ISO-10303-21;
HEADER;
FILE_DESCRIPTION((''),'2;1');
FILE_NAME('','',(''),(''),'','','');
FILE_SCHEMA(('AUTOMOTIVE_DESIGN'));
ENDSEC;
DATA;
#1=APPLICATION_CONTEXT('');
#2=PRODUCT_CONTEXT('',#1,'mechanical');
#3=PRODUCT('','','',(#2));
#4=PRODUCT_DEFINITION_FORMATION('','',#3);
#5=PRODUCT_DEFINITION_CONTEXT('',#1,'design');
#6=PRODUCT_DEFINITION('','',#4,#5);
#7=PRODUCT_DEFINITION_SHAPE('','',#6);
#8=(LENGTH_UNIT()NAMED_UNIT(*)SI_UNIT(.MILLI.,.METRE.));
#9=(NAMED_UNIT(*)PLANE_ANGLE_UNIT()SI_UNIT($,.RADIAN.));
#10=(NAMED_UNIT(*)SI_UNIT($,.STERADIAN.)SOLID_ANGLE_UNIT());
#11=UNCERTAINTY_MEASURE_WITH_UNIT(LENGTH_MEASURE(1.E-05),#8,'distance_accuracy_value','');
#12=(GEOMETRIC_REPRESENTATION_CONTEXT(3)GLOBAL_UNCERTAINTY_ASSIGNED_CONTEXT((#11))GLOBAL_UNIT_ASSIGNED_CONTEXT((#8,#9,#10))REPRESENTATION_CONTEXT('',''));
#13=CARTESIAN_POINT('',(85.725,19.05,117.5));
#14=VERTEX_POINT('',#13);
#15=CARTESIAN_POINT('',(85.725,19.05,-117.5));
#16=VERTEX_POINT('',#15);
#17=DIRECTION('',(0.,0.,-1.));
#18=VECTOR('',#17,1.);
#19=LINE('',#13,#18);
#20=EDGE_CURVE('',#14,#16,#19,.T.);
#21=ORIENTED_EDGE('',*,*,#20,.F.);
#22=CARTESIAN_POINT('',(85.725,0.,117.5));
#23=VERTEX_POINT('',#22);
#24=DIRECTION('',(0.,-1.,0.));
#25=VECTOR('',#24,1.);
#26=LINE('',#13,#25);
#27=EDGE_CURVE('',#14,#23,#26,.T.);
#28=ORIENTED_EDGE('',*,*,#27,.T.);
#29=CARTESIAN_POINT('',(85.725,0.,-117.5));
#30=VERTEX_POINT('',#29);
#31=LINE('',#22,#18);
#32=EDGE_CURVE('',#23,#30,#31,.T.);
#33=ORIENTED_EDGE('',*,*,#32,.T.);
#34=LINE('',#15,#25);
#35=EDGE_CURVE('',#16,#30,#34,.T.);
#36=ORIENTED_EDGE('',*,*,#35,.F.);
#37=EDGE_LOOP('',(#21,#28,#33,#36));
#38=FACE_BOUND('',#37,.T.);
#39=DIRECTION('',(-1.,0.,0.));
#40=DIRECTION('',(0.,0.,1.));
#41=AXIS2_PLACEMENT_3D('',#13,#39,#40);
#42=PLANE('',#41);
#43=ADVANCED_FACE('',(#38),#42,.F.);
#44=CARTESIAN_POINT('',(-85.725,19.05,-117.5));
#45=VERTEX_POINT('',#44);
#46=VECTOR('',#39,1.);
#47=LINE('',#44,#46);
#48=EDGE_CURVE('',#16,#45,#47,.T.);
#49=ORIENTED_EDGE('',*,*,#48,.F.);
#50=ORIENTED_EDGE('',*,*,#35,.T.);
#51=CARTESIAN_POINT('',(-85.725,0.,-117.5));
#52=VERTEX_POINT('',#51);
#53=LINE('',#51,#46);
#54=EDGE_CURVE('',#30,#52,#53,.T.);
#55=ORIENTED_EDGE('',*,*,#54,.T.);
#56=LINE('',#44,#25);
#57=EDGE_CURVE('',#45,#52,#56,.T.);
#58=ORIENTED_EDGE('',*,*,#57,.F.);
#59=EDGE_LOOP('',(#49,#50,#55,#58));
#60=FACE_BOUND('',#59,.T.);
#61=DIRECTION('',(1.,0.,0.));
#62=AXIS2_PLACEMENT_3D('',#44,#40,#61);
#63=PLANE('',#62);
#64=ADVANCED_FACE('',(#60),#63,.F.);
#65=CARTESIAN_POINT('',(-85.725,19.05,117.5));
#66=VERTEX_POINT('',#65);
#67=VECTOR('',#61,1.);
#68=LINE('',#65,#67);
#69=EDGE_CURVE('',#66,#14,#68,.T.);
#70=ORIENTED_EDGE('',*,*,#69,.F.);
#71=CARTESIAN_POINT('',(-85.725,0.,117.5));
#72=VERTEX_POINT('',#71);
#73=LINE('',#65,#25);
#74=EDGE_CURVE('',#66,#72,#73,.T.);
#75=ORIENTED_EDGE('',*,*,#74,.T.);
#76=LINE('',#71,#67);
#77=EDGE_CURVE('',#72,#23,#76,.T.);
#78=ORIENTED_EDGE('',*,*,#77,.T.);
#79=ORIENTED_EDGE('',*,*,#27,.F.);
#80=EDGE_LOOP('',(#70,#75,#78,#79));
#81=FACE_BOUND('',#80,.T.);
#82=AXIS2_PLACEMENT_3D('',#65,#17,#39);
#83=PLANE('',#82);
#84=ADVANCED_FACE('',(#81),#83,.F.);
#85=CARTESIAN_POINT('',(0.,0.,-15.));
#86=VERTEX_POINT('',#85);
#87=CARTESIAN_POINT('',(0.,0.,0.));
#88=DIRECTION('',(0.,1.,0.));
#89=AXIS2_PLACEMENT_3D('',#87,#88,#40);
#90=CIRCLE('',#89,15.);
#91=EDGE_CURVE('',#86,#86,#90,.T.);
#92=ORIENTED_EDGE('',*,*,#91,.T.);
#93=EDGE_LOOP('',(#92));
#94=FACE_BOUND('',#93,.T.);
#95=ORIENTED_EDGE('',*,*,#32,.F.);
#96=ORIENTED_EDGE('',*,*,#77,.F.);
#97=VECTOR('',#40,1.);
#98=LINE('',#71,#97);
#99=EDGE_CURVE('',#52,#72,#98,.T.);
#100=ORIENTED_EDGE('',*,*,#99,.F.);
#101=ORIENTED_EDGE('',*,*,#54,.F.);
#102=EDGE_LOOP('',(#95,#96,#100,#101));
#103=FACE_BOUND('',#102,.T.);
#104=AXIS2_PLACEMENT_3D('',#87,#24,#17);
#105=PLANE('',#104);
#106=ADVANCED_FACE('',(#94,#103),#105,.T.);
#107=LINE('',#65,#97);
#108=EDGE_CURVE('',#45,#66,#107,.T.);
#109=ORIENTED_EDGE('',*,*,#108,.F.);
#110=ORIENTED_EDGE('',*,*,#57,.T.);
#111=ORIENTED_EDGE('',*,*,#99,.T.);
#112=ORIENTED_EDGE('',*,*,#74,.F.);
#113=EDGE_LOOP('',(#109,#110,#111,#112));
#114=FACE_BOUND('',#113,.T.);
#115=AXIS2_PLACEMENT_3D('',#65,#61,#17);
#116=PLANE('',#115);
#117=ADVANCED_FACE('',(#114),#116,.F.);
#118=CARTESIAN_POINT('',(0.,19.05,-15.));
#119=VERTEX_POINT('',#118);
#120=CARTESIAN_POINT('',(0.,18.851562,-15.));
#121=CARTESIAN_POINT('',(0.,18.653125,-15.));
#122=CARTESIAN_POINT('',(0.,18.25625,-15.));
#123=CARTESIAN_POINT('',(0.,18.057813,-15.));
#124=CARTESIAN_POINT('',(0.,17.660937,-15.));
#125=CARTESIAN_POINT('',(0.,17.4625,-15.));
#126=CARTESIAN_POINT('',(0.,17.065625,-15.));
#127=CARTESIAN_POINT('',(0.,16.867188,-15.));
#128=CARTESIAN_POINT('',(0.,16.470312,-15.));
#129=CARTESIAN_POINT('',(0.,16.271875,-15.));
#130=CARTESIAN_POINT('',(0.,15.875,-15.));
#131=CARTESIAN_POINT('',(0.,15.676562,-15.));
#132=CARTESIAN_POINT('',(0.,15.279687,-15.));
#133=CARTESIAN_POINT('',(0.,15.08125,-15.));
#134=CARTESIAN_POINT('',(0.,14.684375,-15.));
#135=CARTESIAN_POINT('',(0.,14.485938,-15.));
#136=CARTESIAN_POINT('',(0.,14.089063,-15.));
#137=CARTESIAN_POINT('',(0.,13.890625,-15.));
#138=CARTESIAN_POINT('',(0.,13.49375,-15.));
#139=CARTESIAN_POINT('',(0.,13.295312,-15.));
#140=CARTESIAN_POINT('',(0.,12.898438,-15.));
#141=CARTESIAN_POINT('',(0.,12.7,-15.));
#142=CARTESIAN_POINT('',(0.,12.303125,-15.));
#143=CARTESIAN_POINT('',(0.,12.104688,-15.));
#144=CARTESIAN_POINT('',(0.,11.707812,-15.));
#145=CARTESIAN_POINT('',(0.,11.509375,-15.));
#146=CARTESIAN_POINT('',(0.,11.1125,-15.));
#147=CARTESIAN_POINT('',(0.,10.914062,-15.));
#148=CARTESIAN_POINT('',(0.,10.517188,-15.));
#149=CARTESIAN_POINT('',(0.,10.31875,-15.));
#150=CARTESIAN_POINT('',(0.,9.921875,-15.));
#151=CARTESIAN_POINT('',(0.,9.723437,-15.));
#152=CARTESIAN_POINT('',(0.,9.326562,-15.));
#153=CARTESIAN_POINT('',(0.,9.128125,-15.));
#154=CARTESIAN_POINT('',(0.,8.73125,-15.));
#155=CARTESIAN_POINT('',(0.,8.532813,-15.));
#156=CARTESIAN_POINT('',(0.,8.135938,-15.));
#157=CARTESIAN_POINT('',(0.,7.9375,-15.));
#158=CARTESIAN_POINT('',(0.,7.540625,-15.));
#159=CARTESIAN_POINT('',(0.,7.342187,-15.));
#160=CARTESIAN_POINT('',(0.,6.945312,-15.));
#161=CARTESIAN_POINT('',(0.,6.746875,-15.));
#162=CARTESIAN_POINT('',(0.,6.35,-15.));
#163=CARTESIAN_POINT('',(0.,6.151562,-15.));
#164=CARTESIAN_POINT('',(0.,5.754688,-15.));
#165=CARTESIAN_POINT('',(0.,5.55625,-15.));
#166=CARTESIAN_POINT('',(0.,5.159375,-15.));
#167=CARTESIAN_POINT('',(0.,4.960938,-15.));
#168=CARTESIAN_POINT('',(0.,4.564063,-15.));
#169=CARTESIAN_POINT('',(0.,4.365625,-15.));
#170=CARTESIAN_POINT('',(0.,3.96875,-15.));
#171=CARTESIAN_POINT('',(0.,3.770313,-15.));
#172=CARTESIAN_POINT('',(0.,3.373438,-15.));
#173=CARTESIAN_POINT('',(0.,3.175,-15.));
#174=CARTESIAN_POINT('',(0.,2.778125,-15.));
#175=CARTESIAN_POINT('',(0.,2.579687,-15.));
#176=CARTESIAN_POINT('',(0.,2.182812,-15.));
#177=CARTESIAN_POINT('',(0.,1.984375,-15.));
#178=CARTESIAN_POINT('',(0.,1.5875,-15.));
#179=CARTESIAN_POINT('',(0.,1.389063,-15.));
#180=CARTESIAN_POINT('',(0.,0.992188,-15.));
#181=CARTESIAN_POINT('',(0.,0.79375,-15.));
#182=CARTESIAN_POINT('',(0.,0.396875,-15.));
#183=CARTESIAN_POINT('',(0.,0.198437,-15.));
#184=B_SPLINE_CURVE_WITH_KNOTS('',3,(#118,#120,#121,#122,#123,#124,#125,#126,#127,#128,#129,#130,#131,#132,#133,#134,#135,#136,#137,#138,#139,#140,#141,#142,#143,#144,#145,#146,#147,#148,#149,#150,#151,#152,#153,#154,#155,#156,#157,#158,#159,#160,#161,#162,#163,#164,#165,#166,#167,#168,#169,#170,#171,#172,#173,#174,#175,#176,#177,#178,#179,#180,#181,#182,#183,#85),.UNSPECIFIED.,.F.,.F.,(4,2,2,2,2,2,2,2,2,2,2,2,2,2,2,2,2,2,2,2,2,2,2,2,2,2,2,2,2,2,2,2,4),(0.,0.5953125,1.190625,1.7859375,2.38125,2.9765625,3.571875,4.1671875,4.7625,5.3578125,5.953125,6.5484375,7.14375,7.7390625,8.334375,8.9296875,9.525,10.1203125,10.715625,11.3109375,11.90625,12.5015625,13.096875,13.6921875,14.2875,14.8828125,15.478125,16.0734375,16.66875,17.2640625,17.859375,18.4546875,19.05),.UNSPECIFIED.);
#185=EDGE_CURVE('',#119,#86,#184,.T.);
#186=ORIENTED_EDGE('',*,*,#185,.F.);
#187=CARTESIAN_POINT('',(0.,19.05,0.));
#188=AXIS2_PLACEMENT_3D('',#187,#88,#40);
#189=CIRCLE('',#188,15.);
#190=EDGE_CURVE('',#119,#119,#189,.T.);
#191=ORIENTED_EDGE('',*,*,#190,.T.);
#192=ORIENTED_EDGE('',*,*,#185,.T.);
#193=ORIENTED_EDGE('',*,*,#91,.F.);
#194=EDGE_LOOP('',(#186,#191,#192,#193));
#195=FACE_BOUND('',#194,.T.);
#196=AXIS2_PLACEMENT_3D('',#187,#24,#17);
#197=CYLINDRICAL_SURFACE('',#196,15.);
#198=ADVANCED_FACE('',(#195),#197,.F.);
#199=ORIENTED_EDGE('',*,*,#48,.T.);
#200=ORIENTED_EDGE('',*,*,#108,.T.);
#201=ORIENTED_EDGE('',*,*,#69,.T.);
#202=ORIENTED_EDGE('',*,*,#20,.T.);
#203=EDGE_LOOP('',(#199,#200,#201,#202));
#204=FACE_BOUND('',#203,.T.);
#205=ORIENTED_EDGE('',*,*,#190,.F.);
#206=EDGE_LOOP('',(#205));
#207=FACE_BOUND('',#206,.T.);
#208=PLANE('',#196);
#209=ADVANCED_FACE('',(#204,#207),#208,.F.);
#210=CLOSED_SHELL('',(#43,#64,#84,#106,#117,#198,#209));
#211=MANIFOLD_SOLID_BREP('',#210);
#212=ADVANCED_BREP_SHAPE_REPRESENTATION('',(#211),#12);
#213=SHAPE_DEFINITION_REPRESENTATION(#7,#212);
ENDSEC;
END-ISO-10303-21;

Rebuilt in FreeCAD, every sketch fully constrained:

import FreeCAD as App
import Part
import Sketcher
Q = App.Units.Quantity


def add_polygon(sketch, points):
    """Adds a closed chain of lines whose ends are joined by coincident constraints."""
    first, n = sketch.GeometryCount, len(points)
    for a, b in zip(points, points[1:] + points[:1]):
        sketch.addGeometry(Part.LineSegment(App.Vector(*a, 0), App.Vector(*b, 0)), False)
    for i in range(n):
        sketch.addConstraint(Sketcher.Constraint("Coincident", first + i, 2, first + (i + 1) % n, 1))

doc = App.newDocument("Part")
body = doc.addObject("PartDesign::Body", "Body")

# Sketch on XZ plane
sketch1 = body.newObject("Sketcher::SketchObject", "Sketch")
sketch1.AttachmentSupport = (doc.getObject("XZ_Plane"), [""])
sketch1.MapMode = "FlatFace"
add_polygon(sketch1, [(-86, -118), (-86, 118), (86, 118), (86, -118)])  # lines 0-3
sketch1.addGeometry(Part.Circle(App.Vector(0, 0, 0), App.Vector(0, 0, 1), 15), False)  # 4
sketch1.addConstraint([
    Sketcher.Constraint("Vertical", 0),
    Sketcher.Constraint("Horizontal", 1),
    Sketcher.Constraint("Vertical", 2),
    Sketcher.Constraint("Horizontal", 3),
    Sketcher.Constraint("Coincident", 4, 3, -1, 1),
    Sketcher.Constraint("Symmetric", 0, 2, 2, 2, -1, 1),
    Sketcher.Constraint("Diameter", 4, Q("30 mm")),
    Sketcher.Constraint("DistanceY", 0, 1, 0, 2, Q("235 mm")),
    Sketcher.Constraint("DistanceX", 1, 1, 1, 2, Q("171.45 mm")),
])
pad1 = body.newObject("PartDesign::Pad", "Pad")
pad1.Profile = sketch1
pad1.Length = 19.05
pad1.Reversed = True

doc.recompute()
